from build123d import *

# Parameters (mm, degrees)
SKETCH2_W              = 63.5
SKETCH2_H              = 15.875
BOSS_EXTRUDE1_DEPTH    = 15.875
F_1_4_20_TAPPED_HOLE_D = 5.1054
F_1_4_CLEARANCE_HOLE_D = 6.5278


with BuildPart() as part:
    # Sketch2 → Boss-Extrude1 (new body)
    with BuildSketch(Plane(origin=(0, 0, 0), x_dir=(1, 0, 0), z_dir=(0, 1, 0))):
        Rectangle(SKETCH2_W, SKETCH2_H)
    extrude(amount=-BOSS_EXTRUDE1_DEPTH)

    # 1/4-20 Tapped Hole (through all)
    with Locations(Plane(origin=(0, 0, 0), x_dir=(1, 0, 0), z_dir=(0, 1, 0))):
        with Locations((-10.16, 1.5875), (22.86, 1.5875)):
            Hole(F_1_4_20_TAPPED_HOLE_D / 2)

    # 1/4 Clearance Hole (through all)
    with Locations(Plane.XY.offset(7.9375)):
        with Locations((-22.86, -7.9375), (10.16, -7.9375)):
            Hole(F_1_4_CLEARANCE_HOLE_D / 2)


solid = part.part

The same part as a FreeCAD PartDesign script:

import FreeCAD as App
import Part
import Sketcher
from FreeCAD import Vector
Q = App.Units.Quantity

doc = App.newDocument("Part")
body = doc.addObject("PartDesign::Body", "Body")

sketch1 = body.newObject("Sketcher::SketchObject", "Sketch")
sketch1.AttachmentSupport = (doc.getObject("XZ_Plane"), [""])
sketch1.MapMode = "FlatFace"
sketch1.addGeometry([
    Part.LineSegment(Vector(-31.75, -7.9375, 0), Vector(-31.75, 7.9375, 0)),
    Part.LineSegment(Vector(-31.75, 7.9375, 0), Vector(31.75, 7.9375, 0)),
    Part.LineSegment(Vector(31.75, 7.9375, 0), Vector(31.75, -7.9375, 0)),
    Part.LineSegment(Vector(31.75, -7.9375, 0), Vector(-31.75, -7.9375, 0)),
], False)
sketch1.addConstraint([
    Sketcher.Constraint("Coincident", 0, 2, 1, 1),
    Sketcher.Constraint("Coincident", 1, 2, 2, 1),
    Sketcher.Constraint("Coincident", 2, 2, 3, 1),
    Sketcher.Constraint("Coincident", 3, 2, 0, 1),
    Sketcher.Constraint("Vertical", 0),
    Sketcher.Constraint("Horizontal", 1),
    Sketcher.Constraint("Vertical", 2),
    Sketcher.Constraint("Horizontal", 3),
    Sketcher.Constraint("Symmetric", 0, 2, 2, 2, -1, 1),
    Sketcher.Constraint("DistanceX", 1, 1, 1, 2, Q("2.5 in")),
    Sketcher.Constraint("DistanceY", 0, 1, 0, 2, Q("0.625 in")),
])
pad1 = body.newObject("PartDesign::Pad", "Pad")
pad1.Profile = sketch1
pad1.Length = Q("0.625 in")

sketch2 = body.newObject("Sketcher::SketchObject", "Sketch001")
sketch2.AttachmentSupport = (doc.getObject("XZ_Plane"), [""])
sketch2.MapMode = "FlatFace"
sketch2.addGeometry([
    Part.Circle(Vector(-10.16, -1.5875, 0), Vector(0, 0, 1), 2.5527),
    Part.Circle(Vector(22.86, -1.5875, 0), Vector(0, 0, 1), 2.5527),
], False)
sketch2.addConstraint([
    Sketcher.Constraint("Equal", 0, 1),
    Sketcher.Constraint("Horizontal", 0, 3, 1, 3),
    Sketcher.Constraint("Diameter", 0, Q("0.201 in")),
    Sketcher.Constraint("DistanceX", 0, 3, -1, 1, Q("0.4 in")),
    Sketcher.Constraint("DistanceX", -1, 1, 1, 3, Q("0.9 in")),
    Sketcher.Constraint("DistanceY", 0, 3, -1, 1, Q("0.0625 in")),
])
doc.recompute()
hole = body.newObject("PartDesign::Hole", "Hole")
hole.Profile = sketch2
hole.ThreadType = "None"
hole.Diameter = Q("0.201 in")
hole.DepthType = "ThroughAll"
hole.Reversed = True

sketch3 = body.newObject("Sketcher::SketchObject", "Sketch002")
sketch3.AttachmentSupport = (doc.getObject("XY_Plane"), [""])
sketch3.MapMode = "FlatFace"
sketch3.AttachmentOffset = App.Placement(Vector(0, 0, 0.3125 * 25.4), App.Rotation())
sketch3.addGeometry([
    Part.Circle(Vector(-22.86, -7.9375, 0), Vector(0, 0, 1), 3.2639),
    Part.Circle(Vector(10.16, -7.9375, 0), Vector(0, 0, 1), 3.2639),
], False)
sketch3.addConstraint([
    Sketcher.Constraint("Equal", 0, 1),
    Sketcher.Constraint("Horizontal", 0, 3, 1, 3),
    Sketcher.Constraint("Diameter", 0, Q("0.257 in")),
    Sketcher.Constraint("DistanceX", 0, 3, -1, 1, Q("0.9 in")),
    Sketcher.Constraint("DistanceX", -1, 1, 1, 3, Q("0.4 in")),
    Sketcher.Constraint("DistanceY", 0, 3, -1, 1, Q("0.3125 in")),
])
doc.recompute()
hole2 = body.newObject("PartDesign::Hole", "Hole001")
hole2.Profile = sketch3
hole2.ThreadType = "None"
hole2.Diameter = Q("0.257 in")
hole2.DepthType = "ThroughAll"

doc.recompute()
